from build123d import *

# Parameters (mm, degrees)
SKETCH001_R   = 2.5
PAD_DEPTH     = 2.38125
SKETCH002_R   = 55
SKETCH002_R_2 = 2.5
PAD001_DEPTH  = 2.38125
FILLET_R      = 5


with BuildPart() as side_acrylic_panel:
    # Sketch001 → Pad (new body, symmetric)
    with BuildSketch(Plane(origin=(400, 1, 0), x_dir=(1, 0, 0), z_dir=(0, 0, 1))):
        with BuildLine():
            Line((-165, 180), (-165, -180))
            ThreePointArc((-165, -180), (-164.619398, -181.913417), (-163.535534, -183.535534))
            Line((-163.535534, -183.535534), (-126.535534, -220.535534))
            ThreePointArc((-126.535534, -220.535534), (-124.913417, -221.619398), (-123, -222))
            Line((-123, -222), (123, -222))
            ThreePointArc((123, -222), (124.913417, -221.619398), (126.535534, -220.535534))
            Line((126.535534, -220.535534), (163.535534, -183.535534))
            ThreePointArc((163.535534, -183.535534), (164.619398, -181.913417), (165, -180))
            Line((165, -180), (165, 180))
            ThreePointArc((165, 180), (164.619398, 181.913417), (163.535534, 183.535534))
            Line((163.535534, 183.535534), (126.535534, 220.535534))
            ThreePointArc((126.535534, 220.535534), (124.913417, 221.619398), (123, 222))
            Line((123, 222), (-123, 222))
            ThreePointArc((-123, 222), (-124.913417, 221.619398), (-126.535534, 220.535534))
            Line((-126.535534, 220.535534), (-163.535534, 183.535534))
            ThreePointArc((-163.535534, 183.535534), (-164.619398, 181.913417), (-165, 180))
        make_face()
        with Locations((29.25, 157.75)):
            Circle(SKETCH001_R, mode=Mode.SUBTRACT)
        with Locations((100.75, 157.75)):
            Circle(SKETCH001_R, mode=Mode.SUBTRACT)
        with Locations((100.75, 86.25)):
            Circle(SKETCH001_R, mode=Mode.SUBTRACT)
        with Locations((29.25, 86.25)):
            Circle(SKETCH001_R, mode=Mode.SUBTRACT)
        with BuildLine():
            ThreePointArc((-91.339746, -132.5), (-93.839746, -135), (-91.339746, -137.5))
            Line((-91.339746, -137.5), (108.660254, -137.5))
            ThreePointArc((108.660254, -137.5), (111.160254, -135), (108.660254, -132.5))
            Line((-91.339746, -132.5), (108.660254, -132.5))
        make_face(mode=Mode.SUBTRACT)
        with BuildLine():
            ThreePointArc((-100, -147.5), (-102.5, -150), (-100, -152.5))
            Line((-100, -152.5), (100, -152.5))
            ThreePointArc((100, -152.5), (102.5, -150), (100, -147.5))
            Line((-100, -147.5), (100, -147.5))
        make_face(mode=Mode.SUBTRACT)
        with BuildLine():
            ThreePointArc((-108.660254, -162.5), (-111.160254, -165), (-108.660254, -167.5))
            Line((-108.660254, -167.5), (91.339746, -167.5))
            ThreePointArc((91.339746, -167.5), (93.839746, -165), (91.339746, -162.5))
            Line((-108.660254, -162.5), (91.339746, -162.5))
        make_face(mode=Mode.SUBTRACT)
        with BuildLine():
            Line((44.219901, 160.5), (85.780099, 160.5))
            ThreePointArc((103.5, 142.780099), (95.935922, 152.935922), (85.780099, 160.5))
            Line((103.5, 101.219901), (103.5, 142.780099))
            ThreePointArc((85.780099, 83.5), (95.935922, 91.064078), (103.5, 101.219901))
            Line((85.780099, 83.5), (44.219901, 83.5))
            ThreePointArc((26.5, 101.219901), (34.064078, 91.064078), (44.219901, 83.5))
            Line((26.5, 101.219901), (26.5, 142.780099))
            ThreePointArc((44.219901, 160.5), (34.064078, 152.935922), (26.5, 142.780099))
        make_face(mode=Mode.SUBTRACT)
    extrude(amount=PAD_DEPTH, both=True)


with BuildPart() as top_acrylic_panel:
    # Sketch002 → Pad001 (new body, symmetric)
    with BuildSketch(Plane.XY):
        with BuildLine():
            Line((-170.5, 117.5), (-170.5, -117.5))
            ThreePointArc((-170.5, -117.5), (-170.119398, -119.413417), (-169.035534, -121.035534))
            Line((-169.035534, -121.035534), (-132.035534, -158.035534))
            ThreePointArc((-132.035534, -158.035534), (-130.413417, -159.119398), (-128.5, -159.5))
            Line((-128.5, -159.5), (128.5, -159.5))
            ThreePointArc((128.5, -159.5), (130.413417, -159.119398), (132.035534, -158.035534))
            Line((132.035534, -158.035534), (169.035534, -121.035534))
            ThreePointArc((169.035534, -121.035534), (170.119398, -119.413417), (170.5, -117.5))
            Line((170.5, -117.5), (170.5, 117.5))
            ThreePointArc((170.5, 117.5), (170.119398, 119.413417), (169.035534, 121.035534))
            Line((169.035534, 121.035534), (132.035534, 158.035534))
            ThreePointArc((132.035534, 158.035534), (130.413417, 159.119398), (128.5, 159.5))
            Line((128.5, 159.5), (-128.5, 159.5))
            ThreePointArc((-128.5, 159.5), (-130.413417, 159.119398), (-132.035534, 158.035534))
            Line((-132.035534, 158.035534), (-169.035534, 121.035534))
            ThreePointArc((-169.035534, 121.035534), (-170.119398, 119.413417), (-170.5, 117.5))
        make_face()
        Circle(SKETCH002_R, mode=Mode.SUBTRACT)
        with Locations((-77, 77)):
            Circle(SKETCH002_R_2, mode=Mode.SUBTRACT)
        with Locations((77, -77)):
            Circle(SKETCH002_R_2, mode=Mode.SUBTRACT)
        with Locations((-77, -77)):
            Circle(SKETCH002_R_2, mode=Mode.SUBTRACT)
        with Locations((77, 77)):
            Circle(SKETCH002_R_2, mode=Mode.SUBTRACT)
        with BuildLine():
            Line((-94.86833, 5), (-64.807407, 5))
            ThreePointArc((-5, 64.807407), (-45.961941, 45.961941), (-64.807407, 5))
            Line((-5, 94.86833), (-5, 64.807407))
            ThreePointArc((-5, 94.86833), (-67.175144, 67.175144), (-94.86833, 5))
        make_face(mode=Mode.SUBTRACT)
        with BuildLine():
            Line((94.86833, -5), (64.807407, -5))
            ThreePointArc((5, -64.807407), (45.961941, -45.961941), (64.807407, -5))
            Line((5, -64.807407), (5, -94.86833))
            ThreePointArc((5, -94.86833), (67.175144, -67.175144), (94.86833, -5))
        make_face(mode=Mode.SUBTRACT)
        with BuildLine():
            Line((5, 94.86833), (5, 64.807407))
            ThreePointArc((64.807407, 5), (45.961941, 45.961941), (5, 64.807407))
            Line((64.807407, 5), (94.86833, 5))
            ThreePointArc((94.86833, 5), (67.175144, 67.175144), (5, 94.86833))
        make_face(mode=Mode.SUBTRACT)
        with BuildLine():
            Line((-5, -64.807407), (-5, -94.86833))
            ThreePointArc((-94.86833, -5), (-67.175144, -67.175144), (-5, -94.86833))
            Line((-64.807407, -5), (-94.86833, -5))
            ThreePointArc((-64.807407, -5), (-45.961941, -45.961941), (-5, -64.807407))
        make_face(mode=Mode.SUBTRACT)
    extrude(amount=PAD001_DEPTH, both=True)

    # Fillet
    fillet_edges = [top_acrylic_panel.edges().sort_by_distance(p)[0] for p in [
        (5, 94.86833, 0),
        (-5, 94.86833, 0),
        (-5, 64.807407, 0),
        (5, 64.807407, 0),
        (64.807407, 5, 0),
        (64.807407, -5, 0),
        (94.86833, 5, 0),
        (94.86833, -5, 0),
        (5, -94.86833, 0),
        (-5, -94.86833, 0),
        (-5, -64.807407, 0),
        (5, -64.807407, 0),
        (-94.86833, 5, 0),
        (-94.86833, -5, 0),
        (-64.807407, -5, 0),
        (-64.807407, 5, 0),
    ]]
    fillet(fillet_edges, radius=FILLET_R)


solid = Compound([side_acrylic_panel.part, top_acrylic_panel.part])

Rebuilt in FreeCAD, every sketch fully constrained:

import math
import FreeCAD as App
import Part
import Sketcher
Q = App.Units.Quantity


def edges_at(feature, points):
    """Names of the edges that pass closest to the given points."""
    edges = feature.Shape.Edges
    near = lambda p: min(range(len(edges)), key=lambda i: edges[i].distToShape(Part.Vertex(*p))[0])
    return sorted({f"Edge{near(p) + 1}" for p in points})

doc = App.newDocument("Part")
body = doc.addObject("PartDesign::Body", "Body")

# Sketch on XY plane
sketch1 = body.newObject("Sketcher::SketchObject", "Sketch")
sketch1.AttachmentSupport = (doc.getObject("XY_Plane"), [""])
sketch1.MapMode = "FlatFace"
sketch1.addGeometry(Part.LineSegment(App.Vector(235, 181, 0), App.Vector(235, -179, 0)), False)
sketch1.addGeometry(Part.ArcOfCircle(Part.Circle(App.Vector(240, -179, 0), App.Vector(0, 0, 1), 5), math.radians(180), math.radians(225)), False)
sketch1.addGeometry(Part.LineSegment(App.Vector(236.5, -182.5, 0), App.Vector(273.5, -219.5, 0)), False)
sketch1.addGeometry(Part.ArcOfCircle(Part.Circle(App.Vector(277, -216, 0), App.Vector(0, 0, 1), 5), math.radians(-135), math.radians(-90)), False)
sketch1.addGeometry(Part.LineSegment(App.Vector(277, -221, 0), App.Vector(523, -221, 0)), False)
sketch1.addGeometry(Part.ArcOfCircle(Part.Circle(App.Vector(523, -216, 0), App.Vector(0, 0, 1), 5), math.radians(-90), math.radians(-45)), False)
sketch1.addGeometry(Part.LineSegment(App.Vector(526.5, -219.5, 0), App.Vector(563.5, -182.5, 0)), False)
sketch1.addGeometry(Part.ArcOfCircle(Part.Circle(App.Vector(560, -179, 0), App.Vector(0, 0, 1), 5), math.radians(-45), math.radians(0)), False)
sketch1.addGeometry(Part.LineSegment(App.Vector(565, -179, 0), App.Vector(565, 181, 0)), False)
sketch1.addGeometry(Part.ArcOfCircle(Part.Circle(App.Vector(560, 181, 0), App.Vector(0, 0, 1), 5), math.radians(0), math.radians(45)), False)
sketch1.addGeometry(Part.LineSegment(App.Vector(563.5, 184.5, 0), App.Vector(526.5, 221.5, 0)), False)
sketch1.addGeometry(Part.ArcOfCircle(Part.Circle(App.Vector(523, 218, 0), App.Vector(0, 0, 1), 5), math.radians(45), math.radians(90)), False)
sketch1.addGeometry(Part.LineSegment(App.Vector(523, 223, 0), App.Vector(277, 223, 0)), False)
sketch1.addGeometry(Part.ArcOfCircle(Part.Circle(App.Vector(277, 218, 0), App.Vector(0, 0, 1), 5), math.radians(90), math.radians(135)), False)
sketch1.addGeometry(Part.LineSegment(App.Vector(273.5, 221.5, 0), App.Vector(236.5, 184.5, 0)), False)
sketch1.addGeometry(Part.ArcOfCircle(Part.Circle(App.Vector(240, 181, 0), App.Vector(0, 0, 1), 5), math.radians(135), math.radians(180)), False)
sketch1.addGeometry(Part.ArcOfCircle(Part.Circle(App.Vector(291.3, -164, 0), App.Vector(0, 0, 1), 2.5), math.radians(90), math.radians(270)), False)
sketch1.addGeometry(Part.LineSegment(App.Vector(291.3, -161.5, 0), App.Vector(491.3, -161.5, 0)), False)
sketch1.addGeometry(Part.ArcOfCircle(Part.Circle(App.Vector(491.3, -164, 0), App.Vector(0, 0, 1), 2.5), math.radians(-90), math.radians(90)), False)
sketch1.addGeometry(Part.LineSegment(App.Vector(491.3, -166.5, 0), App.Vector(291.3, -166.5, 0)), False)
sketch1.addGeometry(Part.ArcOfCircle(Part.Circle(App.Vector(300, -149, 0), App.Vector(0, 0, 1), 2.5), math.radians(90), math.radians(270)), False)
sketch1.addGeometry(Part.LineSegment(App.Vector(300, -146.5, 0), App.Vector(500, -146.5, 0)), False)
sketch1.addGeometry(Part.ArcOfCircle(Part.Circle(App.Vector(500, -149, 0), App.Vector(0, 0, 1), 2.5), math.radians(-90), math.radians(90)), False)
sketch1.addGeometry(Part.LineSegment(App.Vector(500, -151.5, 0), App.Vector(300, -151.5, 0)), False)
sketch1.addGeometry(Part.ArcOfCircle(Part.Circle(App.Vector(308.7, -134, 0), App.Vector(0, 0, 1), 2.5), math.radians(90), math.radians(270)), False)
sketch1.addGeometry(Part.LineSegment(App.Vector(308.7, -131.5, 0), App.Vector(508.7, -131.5, 0)), False)
sketch1.addGeometry(Part.ArcOfCircle(Part.Circle(App.Vector(508.7, -134, 0), App.Vector(0, 0, 1), 2.5), math.radians(-90), math.radians(90)), False)
sketch1.addGeometry(Part.LineSegment(App.Vector(508.7, -136.5, 0), App.Vector(308.7, -136.5, 0)), False)
sketch1.addGeometry(Part.Circle(App.Vector(429.2, 87.2, 0), App.Vector(0, 0, 1), 2.5), False)
sketch1.addGeometry(Part.Circle(App.Vector(429.2, 158.8, 0), App.Vector(0, 0, 1), 2.5), False)
sketch1.addGeometry(Part.Circle(App.Vector(500.8, 87.2, 0), App.Vector(0, 0, 1), 2.5), False)
sketch1.addGeometry(Part.ArcOfCircle(Part.Circle(App.Vector(465, 123, 0), App.Vector(0, 0, 1), 43.7), math.radians(118), math.radians(152)), False)
sketch1.addGeometry(Part.LineSegment(App.Vector(444.2, 161.5, 0), App.Vector(485.8, 161.5, 0)), False)
sketch1.addGeometry(Part.ArcOfCircle(Part.Circle(App.Vector(465, 123, 0), App.Vector(0, 0, 1), 43.7), math.radians(28), math.radians(62)), False)
sketch1.addGeometry(Part.LineSegment(App.Vector(503.5, 143.8, 0), App.Vector(503.5, 102.2, 0)), False)
sketch1.addGeometry(Part.ArcOfCircle(Part.Circle(App.Vector(465, 123, 0), App.Vector(0, 0, 1), 43.7), math.radians(-62), math.radians(-28)), False)
sketch1.addGeometry(Part.LineSegment(App.Vector(485.8, 84.5, 0), App.Vector(444.2, 84.5, 0)), False)
sketch1.addGeometry(Part.ArcOfCircle(Part.Circle(App.Vector(465, 123, 0), App.Vector(0, 0, 1), 43.7), math.radians(-152), math.radians(-118)), False)
sketch1.addGeometry(Part.LineSegment(App.Vector(426.5, 102.2, 0), App.Vector(426.5, 143.8, 0)), False)
sketch1.addGeometry(Part.Circle(App.Vector(500.8, 158.8, 0), App.Vector(0, 0, 1), 2.5), False)
sketch1.addConstraint(Sketcher.Constraint("Tangent", 0, 2, 1, 1))
sketch1.addConstraint(Sketcher.Constraint("Tangent", 1, 2, 2, 1))
sketch1.addConstraint(Sketcher.Constraint("Tangent", 2, 2, 3, 1))
sketch1.addConstraint(Sketcher.Constraint("Tangent", 3, 2, 4, 1))
sketch1.addConstraint(Sketcher.Constraint("Tangent", 4, 2, 5, 1))
sketch1.addConstraint(Sketcher.Constraint("Tangent", 5, 2, 6, 1))
sketch1.addConstraint(Sketcher.Constraint("Tangent", 6, 2, 7, 1))
sketch1.addConstraint(Sketcher.Constraint("Tangent", 7, 2, 8, 1))
sketch1.addConstraint(Sketcher.Constraint("Tangent", 8, 2, 9, 1))
sketch1.addConstraint(Sketcher.Constraint("Tangent", 9, 2, 10, 1))
sketch1.addConstraint(Sketcher.Constraint("Tangent", 10, 2, 11, 1))
sketch1.addConstraint(Sketcher.Constraint("Tangent", 11, 2, 12, 1))
sketch1.addConstraint(Sketcher.Constraint("Tangent", 12, 2, 13, 1))
sketch1.addConstraint(Sketcher.Constraint("Tangent", 13, 2, 14, 1))
sketch1.addConstraint(Sketcher.Constraint("Tangent", 14, 2, 15, 1))
sketch1.addConstraint(Sketcher.Constraint("Tangent", 15, 2, 0, 1))
sketch1.addConstraint(Sketcher.Constraint("Tangent", 16, 1, 17, 1))
sketch1.addConstraint(Sketcher.Constraint("Tangent", 17, 2, 18, 2))
sketch1.addConstraint(Sketcher.Constraint("Tangent", 18, 1, 19, 1))
sketch1.addConstraint(Sketcher.Constraint("Tangent", 19, 2, 16, 2))
sketch1.addConstraint(Sketcher.Constraint("Tangent", 20, 1, 21, 1))
sketch1.addConstraint(Sketcher.Constraint("Tangent", 21, 2, 22, 2))
sketch1.addConstraint(Sketcher.Constraint("Tangent", 22, 1, 23, 1))
sketch1.addConstraint(Sketcher.Constraint("Tangent", 23, 2, 20, 2))
sketch1.addConstraint(Sketcher.Constraint("Tangent", 24, 1, 25, 1))
sketch1.addConstraint(Sketcher.Constraint("Tangent", 25, 2, 26, 2))
sketch1.addConstraint(Sketcher.Constraint("Tangent", 26, 1, 27, 1))
sketch1.addConstraint(Sketcher.Constraint("Tangent", 27, 2, 24, 2))
sketch1.addConstraint(Sketcher.Constraint("Coincident", 31, 1, 32, 1))
sketch1.addConstraint(Sketcher.Constraint("Coincident", 32, 2, 33, 2))
sketch1.addConstraint(Sketcher.Constraint("Coincident", 33, 1, 34, 1))
sketch1.addConstraint(Sketcher.Constraint("Coincident", 34, 2, 35, 2))
sketch1.addConstraint(Sketcher.Constraint("Coincident", 35, 1, 36, 1))
sketch1.addConstraint(Sketcher.Constraint("Coincident", 36, 2, 37, 2))
sketch1.addConstraint(Sketcher.Constraint("Coincident", 37, 1, 38, 1))
sketch1.addConstraint(Sketcher.Constraint("Coincident", 38, 2, 31, 2))
sketch1.addConstraint(Sketcher.Constraint("Vertical", 0))
sketch1.addConstraint(Sketcher.Constraint("Horizontal", 4))
sketch1.addConstraint(Sketcher.Constraint("Vertical", 8))
sketch1.addConstraint(Sketcher.Constraint("Horizontal", 12))
sketch1.addConstraint(Sketcher.Constraint("Horizontal", 17))
sketch1.addConstraint(Sketcher.Constraint("Horizontal", 19))
sketch1.addConstraint(Sketcher.Constraint("Horizontal", 21))
sketch1.addConstraint(Sketcher.Constraint("Horizontal", 23))
sketch1.addConstraint(Sketcher.Constraint("Horizontal", 25))
sketch1.addConstraint(Sketcher.Constraint("Horizontal", 27))
sketch1.addConstraint(Sketcher.Constraint("Horizontal", 32))
sketch1.addConstraint(Sketcher.Constraint("Vertical", 34))
sketch1.addConstraint(Sketcher.Constraint("Horizontal", 36))
sketch1.addConstraint(Sketcher.Constraint("Vertical", 38))
sketch1.addConstraint(Sketcher.Constraint("Coincident", 33, 3, 31, 3))
sketch1.addConstraint(Sketcher.Constraint("Coincident", 35, 3, 33, 3))
sketch1.addConstraint(Sketcher.Constraint("Coincident", 37, 3, 31, 3))
sketch1.addConstraint(Sketcher.Constraint("Equal", 1, 3))
sketch1.addConstraint(Sketcher.Constraint("Equal", 3, 5))
sketch1.addConstraint(Sketcher.Constraint("Equal", 5, 7))
sketch1.addConstraint(Sketcher.Constraint("Equal", 7, 9))
sketch1.addConstraint(Sketcher.Constraint("Equal", 9, 11))
sketch1.addConstraint(Sketcher.Constraint("Equal", 11, 13))
sketch1.addConstraint(Sketcher.Constraint("Equal", 13, 15))
sketch1.addConstraint(Sketcher.Constraint("Equal", 18, 20))
sketch1.addConstraint(Sketcher.Constraint("Equal", 22, 24))
sketch1.addConstraint(Sketcher.Constraint("Equal", 26, 28))
sketch1.addConstraint(Sketcher.Constraint("Equal", 28, 29))
sketch1.addConstraint(Sketcher.Constraint("Equal", 29, 30))
sketch1.addConstraint(Sketcher.Constraint("Equal", 31, 33))
sketch1.addConstraint(Sketcher.Constraint("Equal", 33, 35))
sketch1.addConstraint(Sketcher.Constraint("Equal", 35, 37))
sketch1.addConstraint(Sketcher.Constraint("Equal", 30, 39))
sketch1.addConstraint(Sketcher.Constraint("Perpendicular", 2, 6))
sketch1.addConstraint(Sketcher.Constraint("Perpendicular", 6, 10))
sketch1.addConstraint(Sketcher.Constraint("Perpendicular", 10, 14))
sketch1.addConstraint(Sketcher.Constraint("Horizontal", 1, 3, 7, 3))
sketch1.addConstraint(Sketcher.Constraint("Horizontal", 9, 3, 15, 3))
sketch1.addConstraint(Sketcher.Constraint("Horizontal", 28, 3, 30, 3))
sketch1.addConstraint(Sketcher.Constraint("Horizontal", 29, 3, 39, 3))
sketch1.addConstraint(Sketcher.Constraint("Horizontal", 2, 2, 5, 2))
sketch1.addConstraint(Sketcher.Constraint("Horizontal", 34, 2, 37, 1))
sketch1.addConstraint(Sketcher.Constraint("Vertical", 5, 3, 11, 3))
sketch1.addConstraint(Sketcher.Constraint("Vertical", 28, 3, 29, 3))
sketch1.addConstraint(Sketcher.Constraint("Vertical", 30, 3, 39, 3))
sketch1.addConstraint(Sketcher.Constraint("Vertical", 32, 2, 35, 1))
sketch1.addConstraint(Sketcher.Constraint("Equal", 19, 21))
sketch1.addConstraint(Sketcher.Constraint("Equal", 23, 25))
sketch1.addConstraint(Sketcher.Constraint("Equal", 36, 34))
sketch1.addConstraint(Sketcher.Constraint("Diameter", 28, Q("5 mm")))
sketch1.addConstraint(Sketcher.Constraint("DistanceX", 4, 1, 4, 2, Q("246 mm")))
sketch1.addConstraint(Sketcher.Constraint("DistanceX", 17, 1, 17, 2, Q("200 mm")))
sketch1.addConstraint(Sketcher.Constraint("DistanceY", 0, 2, 0, 1, Q("360 mm")))
sketch1.addConstraint(Sketcher.Constraint("DistanceY", 1, 3, -1, 1, Q("179.000001 mm")))
sketch1.addConstraint(Sketcher.Constraint("DistanceX", -1, 1, 3, 3, Q("276.999999 mm")))
sketch1.addConstraint(Sketcher.Constraint("DistanceY", 16, 3, -1, 1, Q("164 mm")))
sketch1.addConstraint(Sketcher.Constraint("DistanceX", -1, 1, 20, 3, Q("300 mm")))
sketch1.addConstraint(Sketcher.Constraint("DistanceY", 20, 3, -1, 1, Q("149 mm")))
sketch1.addConstraint(Sketcher.Constraint("DistanceY", 24, 3, -1, 1, Q("134 mm")))
sketch1.addConstraint(Sketcher.Constraint("DistanceX", -1, 1, 0, 2, Q("235 mm")))
sketch1.addConstraint(Sketcher.Constraint("DistanceX", 1, 3, 3, 3, Q("37.000001 mm")))
sketch1.addConstraint(Sketcher.Constraint("DistanceY", -1, 1, 31, 1, Q("161.5 mm")))
sketch1.addConstraint(Sketcher.Constraint("DistanceX", -1, 1, 33, 1, Q("503.5 mm")))
sketch1.addConstraint(Sketcher.Constraint("DistanceY", -1, 1, 35, 1, Q("84.5 mm")))
sketch1.addConstraint(Sketcher.Constraint("DistanceY", 28, 3, 29, 3, Q("71.5 mm")))
sketch1.addConstraint(Sketcher.Constraint("DistanceX", 28, 3, 30, 3, Q("71.5 mm")))
sketch1.addConstraint(Sketcher.Constraint("DistanceX", -1, 1, 28, 3, Q("429.25 mm")))
sketch1.addConstraint(Sketcher.Constraint("DistanceY", -1, 1, 28, 3, Q("87.25 mm")))
sketch1.addConstraint(Sketcher.Constraint("DistanceX", 32, 1, 32, 2, Q("41.560198 mm")))
sketch1.addConstraint(Sketcher.Constraint("DistanceX", 1, 3, 16, 3, Q("51.339748 mm")))
sketch1.addConstraint(Sketcher.Constraint("DistanceX", 16, 3, 24, 3, Q("17.320508 mm")))
pad1 = body.newObject("PartDesign::Pad", "Pad")
pad1.Profile = sketch1
pad1.Length = 4.7625
pad1.Midplane = True
body2 = doc.addObject("PartDesign::Body", "Body001")

# Sketch on XY plane
sketch2 = body2.newObject("Sketcher::SketchObject", "Sketch001")
sketch2.AttachmentSupport = (doc.getObject("XY_Plane001"), [""])
sketch2.MapMode = "FlatFace"
sketch2.addGeometry(Part.LineSegment(App.Vector(-170.5, 117.5, 0), App.Vector(-170.5, -117.5, 0)), False)
sketch2.addGeometry(Part.ArcOfCircle(Part.Circle(App.Vector(-165.5, -117.5, 0), App.Vector(0, 0, 1), 5), math.radians(180), math.radians(225)), False)
sketch2.addGeometry(Part.LineSegment(App.Vector(-169, -121, 0), App.Vector(-132, -158, 0)), False)
sketch2.addGeometry(Part.ArcOfCircle(Part.Circle(App.Vector(-128.5, -154.5, 0), App.Vector(0, 0, 1), 5), math.radians(-135), math.radians(-90)), False)
sketch2.addGeometry(Part.LineSegment(App.Vector(-128.5, -159.5, 0), App.Vector(128.5, -159.5, 0)), False)
sketch2.addGeometry(Part.ArcOfCircle(Part.Circle(App.Vector(128.5, -154.5, 0), App.Vector(0, 0, 1), 5), math.radians(-90), math.radians(-45)), False)
sketch2.addGeometry(Part.LineSegment(App.Vector(132, -158, 0), App.Vector(169, -121, 0)), False)
sketch2.addGeometry(Part.ArcOfCircle(Part.Circle(App.Vector(165.5, -117.5, 0), App.Vector(0, 0, 1), 5), math.radians(-45), math.radians(0)), False)
sketch2.addGeometry(Part.LineSegment(App.Vector(170.5, -117.5, 0), App.Vector(170.5, 117.5, 0)), False)
sketch2.addGeometry(Part.ArcOfCircle(Part.Circle(App.Vector(165.5, 117.5, 0), App.Vector(0, 0, 1), 5), math.radians(0), math.radians(45)), False)
sketch2.addGeometry(Part.LineSegment(App.Vector(169, 121, 0), App.Vector(132, 158, 0)), False)
sketch2.addGeometry(Part.ArcOfCircle(Part.Circle(App.Vector(128.5, 154.5, 0), App.Vector(0, 0, 1), 5), math.radians(45), math.radians(90)), False)
sketch2.addGeometry(Part.LineSegment(App.Vector(128.5, 159.5, 0), App.Vector(-128.5, 159.5, 0)), False)
sketch2.addGeometry(Part.ArcOfCircle(Part.Circle(App.Vector(-128.5, 154.5, 0), App.Vector(0, 0, 1), 5), math.radians(90), math.radians(135)), False)
sketch2.addGeometry(Part.LineSegment(App.Vector(-132, 158, 0), App.Vector(-169, 121, 0)), False)
sketch2.addGeometry(Part.ArcOfCircle(Part.Circle(App.Vector(-165.5, 117.5, 0), App.Vector(0, 0, 1), 5), math.radians(135), math.radians(180)), False)
sketch2.addGeometry(Part.Circle(App.Vector(-77, -77, 0), App.Vector(0, 0, 1), 2.5), False)
sketch2.addGeometry(Part.ArcOfCircle(Part.Circle(App.Vector(0, 0, 0), App.Vector(0, 0, 1), 65), math.radians(-176), math.radians(-94)), False)
sketch2.addGeometry(Part.LineSegment(App.Vector(-5, -64.8, 0), App.Vector(-5, -94.9, 0)), False)
sketch2.addGeometry(Part.ArcOfCircle(Part.Circle(App.Vector(0, 0, 0), App.Vector(0, 0, 1), 95), math.radians(-177), math.radians(-93)), False)
sketch2.addGeometry(Part.LineSegment(App.Vector(-94.9, -5, 0), App.Vector(-64.8, -5, 0)), False)
sketch2.addGeometry(Part.Circle(App.Vector(77, -77, 0), App.Vector(0, 0, 1), 2.5), False)
sketch2.addGeometry(Part.LineSegment(App.Vector(64.8, -5, 0), App.Vector(94.9, -5, 0)), False)
sketch2.addGeometry(Part.ArcOfCircle(Part.Circle(App.Vector(0, 0, 0), App.Vector(0, 0, 1), 95), math.radians(-87), math.radians(-3)), False)
sketch2.addGeometry(Part.LineSegment(App.Vector(5, -94.9, 0), App.Vector(5, -64.8, 0)), False)
sketch2.addGeometry(Part.ArcOfCircle(Part.Circle(App.Vector(0, 0, 0), App.Vector(0, 0, 1), 65), math.radians(-86), math.radians(-4)), False)
sketch2.addGeometry(Part.LineSegment(App.Vector(-64.8, 5, 0), App.Vector(-94.9, 5, 0)), False)
sketch2.addGeometry(Part.ArcOfCircle(Part.Circle(App.Vector(0, 0, 0), App.Vector(0, 0, 1), 95), math.radians(93), math.radians(177)), False)
sketch2.addGeometry(Part.LineSegment(App.Vector(-5, 94.9, 0), App.Vector(-5, 64.8, 0)), False)
sketch2.addGeometry(Part.ArcOfCircle(Part.Circle(App.Vector(0, 0, 0), App.Vector(0, 0, 1), 65), math.radians(94), math.radians(176)), False)
sketch2.addGeometry(Part.Circle(App.Vector(-77, 77, 0), App.Vector(0, 0, 1), 2.5), False)
sketch2.addGeometry(Part.Circle(App.Vector(0, 0, 0), App.Vector(0, 0, 1), 55), False)
sketch2.addGeometry(Part.LineSegment(App.Vector(5, 64.8, 0), App.Vector(5, 94.9, 0)), False)
sketch2.addGeometry(Part.ArcOfCircle(Part.Circle(App.Vector(0, 0, 0), App.Vector(0, 0, 1), 95), math.radians(3), math.radians(87)), False)
sketch2.addGeometry(Part.LineSegment(App.Vector(94.9, 5, 0), App.Vector(64.8, 5, 0)), False)
sketch2.addGeometry(Part.ArcOfCircle(Part.Circle(App.Vector(0, 0, 0), App.Vector(0, 0, 1), 65), math.radians(4), math.radians(86)), False)
sketch2.addGeometry(Part.Circle(App.Vector(77, 77, 0), App.Vector(0, 0, 1), 2.5), False)
sketch2.addConstraint(Sketcher.Constraint("Tangent", 0, 2, 1, 1))
sketch2.addConstraint(Sketcher.Constraint("Tangent", 1, 2, 2, 1))
sketch2.addConstraint(Sketcher.Constraint("Tangent", 2, 2, 3, 1))
sketch2.addConstraint(Sketcher.Constraint("Tangent", 3, 2, 4, 1))
sketch2.addConstraint(Sketcher.Constraint("Tangent", 4, 2, 5, 1))
sketch2.addConstraint(Sketcher.Constraint("Tangent", 5, 2, 6, 1))
sketch2.addConstraint(Sketcher.Constraint("Tangent", 6, 2, 7, 1))
sketch2.addConstraint(Sketcher.Constraint("Tangent", 7, 2, 8, 1))
sketch2.addConstraint(Sketcher.Constraint("Tangent", 8, 2, 9, 1))
sketch2.addConstraint(Sketcher.Constraint("Tangent", 9, 2, 10, 1))
sketch2.addConstraint(Sketcher.Constraint("Tangent", 10, 2, 11, 1))
sketch2.addConstraint(Sketcher.Constraint("Tangent", 11, 2, 12, 1))
sketch2.addConstraint(Sketcher.Constraint("Tangent", 12, 2, 13, 1))
sketch2.addConstraint(Sketcher.Constraint("Tangent", 13, 2, 14, 1))
sketch2.addConstraint(Sketcher.Constraint("Tangent", 14, 2, 15, 1))
sketch2.addConstraint(Sketcher.Constraint("Tangent", 15, 2, 0, 1))
sketch2.addConstraint(Sketcher.Constraint("Coincident", 17, 2, 18, 1))
sketch2.addConstraint(Sketcher.Constraint("Coincident", 18, 2, 19, 2))
sketch2.addConstraint(Sketcher.Constraint("Coincident", 19, 1, 20, 1))
sketch2.addConstraint(Sketcher.Constraint("Coincident", 20, 2, 17, 1))
sketch2.addConstraint(Sketcher.Constraint("Coincident", 22, 2, 23, 2))
sketch2.addConstraint(Sketcher.Constraint("Coincident", 23, 1, 24, 1))
sketch2.addConstraint(Sketcher.Constraint("Coincident", 24, 2, 25, 1))
sketch2.addConstraint(Sketcher.Constraint("Coincident", 25, 2, 22, 1))
sketch2.addConstraint(Sketcher.Constraint("Coincident", 26, 2, 27, 2))
sketch2.addConstraint(Sketcher.Constraint("Coincident", 27, 1, 28, 1))
sketch2.addConstraint(Sketcher.Constraint("Coincident", 28, 2, 29, 1))
sketch2.addConstraint(Sketcher.Constraint("Coincident", 29, 2, 26, 1))
sketch2.addConstraint(Sketcher.Constraint("Coincident", 32, 2, 33, 2))
sketch2.addConstraint(Sketcher.Constraint("Coincident", 33, 1, 34, 1))
sketch2.addConstraint(Sketcher.Constraint("Coincident", 34, 2, 35, 1))
sketch2.addConstraint(Sketcher.Constraint("Coincident", 35, 2, 32, 1))
sketch2.addConstraint(Sketcher.Constraint("Vertical", 0))
sketch2.addConstraint(Sketcher.Constraint("Horizontal", 4))
sketch2.addConstraint(Sketcher.Constraint("Vertical", 8))
sketch2.addConstraint(Sketcher.Constraint("Horizontal", 12))
sketch2.addConstraint(Sketcher.Constraint("Vertical", 18))
sketch2.addConstraint(Sketcher.Constraint("Horizontal", 20))
sketch2.addConstraint(Sketcher.Constraint("Horizontal", 22))
sketch2.addConstraint(Sketcher.Constraint("Vertical", 24))
sketch2.addConstraint(Sketcher.Constraint("Horizontal", 26))
sketch2.addConstraint(Sketcher.Constraint("Vertical", 28))
sketch2.addConstraint(Sketcher.Constraint("Vertical", 32))
sketch2.addConstraint(Sketcher.Constraint("Horizontal", 34))
sketch2.addConstraint(Sketcher.Constraint("Coincident", 17, 3, -1, 1))
sketch2.addConstraint(Sketcher.Constraint("Coincident", 19, 3, -1, 1))
sketch2.addConstraint(Sketcher.Constraint("Coincident", 23, 3, -1, 1))
sketch2.addConstraint(Sketcher.Constraint("Coincident", 25, 3, -1, 1))
sketch2.addConstraint(Sketcher.Constraint("Coincident", 27, 3, -1, 1))
sketch2.addConstraint(Sketcher.Constraint("Coincident", 29, 3, -1, 1))
sketch2.addConstraint(Sketcher.Constraint("Coincident", 31, 3, -1, 1))
sketch2.addConstraint(Sketcher.Constraint("Coincident", 33, 3, -1, 1))
sketch2.addConstraint(Sketcher.Constraint("Coincident", 35, 3, -1, 1))
sketch2.addConstraint(Sketcher.Constraint("Equal", 1, 3))
sketch2.addConstraint(Sketcher.Constraint("Equal", 3, 5))
sketch2.addConstraint(Sketcher.Constraint("Equal", 5, 7))
sketch2.addConstraint(Sketcher.Constraint("Equal", 7, 9))
sketch2.addConstraint(Sketcher.Constraint("Equal", 9, 11))
sketch2.addConstraint(Sketcher.Constraint("Equal", 11, 13))
sketch2.addConstraint(Sketcher.Constraint("Equal", 13, 15))
sketch2.addConstraint(Sketcher.Constraint("Equal", 16, 21))
sketch2.addConstraint(Sketcher.Constraint("Equal", 19, 23))
sketch2.addConstraint(Sketcher.Constraint("Equal", 17, 25))
sketch2.addConstraint(Sketcher.Constraint("Equal", 23, 27))
sketch2.addConstraint(Sketcher.Constraint("Equal", 25, 29))
sketch2.addConstraint(Sketcher.Constraint("Equal", 21, 30))
sketch2.addConstraint(Sketcher.Constraint("Equal", 27, 33))
sketch2.addConstraint(Sketcher.Constraint("Equal", 29, 35))
sketch2.addConstraint(Sketcher.Constraint("Equal", 30, 36))
sketch2.addConstraint(Sketcher.Constraint("Symmetric", 1, 3, 9, 3, -1, 1))
sketch2.addConstraint(Sketcher.Constraint("Symmetric", 3, 3, 11, 3, -1, 1))
sketch2.addConstraint(Sketcher.Constraint("Symmetric", 21, 3, 30, 3, -1, 1))
sketch2.addConstraint(Sketcher.Constraint("Symmetric", 16, 3, 36, 3, -1, 1))
sketch2.addConstraint(Sketcher.Constraint("Symmetric", 5, 2, 13, 2, -1, 1))
sketch2.addConstraint(Sketcher.Constraint("Symmetric", 16, 3, 21, 3, -2))
sketch2.addConstraint(Sketcher.Constraint("Symmetric", 2, 2, 5, 2, -2))
sketch2.addConstraint(Sketcher.Constraint("Perpendicular", 2, 6))
sketch2.addConstraint(Sketcher.Constraint("Horizontal", 20, 2, 22, 2))
sketch2.addConstraint(Sketcher.Constraint("Horizontal", 18, 2, 23, 1))
sketch2.addConstraint(Sketcher.Constraint("Horizontal", 27, 1, 32, 2))
sketch2.addConstraint(Sketcher.Constraint("Horizontal", 29, 2, 33, 1))
sketch2.addConstraint(Sketcher.Constraint("Vertical", 19, 1, 26, 2))
sketch2.addConstraint(Sketcher.Constraint("Vertical", 18, 2, 27, 1))
sketch2.addConstraint(Sketcher.Constraint("Equal", 34, 18))
sketch2.addConstraint(Sketcher.Constraint("Diameter", 16, Q("5 mm")))
sketch2.addConstraint(Sketcher.Constraint("Diameter", 31, Q("110 mm")))
sketch2.addConstraint(Sketcher.Constraint("Radius", 17, Q("64.999999 mm")))
sketch2.addConstraint(Sketcher.Constraint("Radius", 19, Q("95.000002 mm")))
sketch2.addConstraint(Sketcher.Constraint("DistanceX", 4, 1, 4, 2, Q("257 mm")))
sketch2.addConstraint(Sketcher.Constraint("DistanceY", 0, 2, 0, 1, Q("235 mm")))
sketch2.addConstraint(Sketcher.Constraint("DistanceX", 16, 3, -1, 1, Q("77 mm")))
sketch2.addConstraint(Sketcher.Constraint("DistanceY", 16, 3, -1, 1, Q("77 mm")))
sketch2.addConstraint(Sketcher.Constraint("DistanceX", 17, 2, -1, 1, Q("5 mm")))
sketch2.addConstraint(Sketcher.Constraint("DistanceX", 1, 3, 3, 3, Q("37.000001 mm")))
sketch2.addConstraint(Sketcher.Constraint("DistanceX", 0, 2, 3, 3, Q("41.999999 mm")))
pad2 = body2.newObject("PartDesign::Pad", "Pad001")
pad2.Profile = sketch2
pad2.Length = 4.7625
pad2.Midplane = True
doc.recompute()

fillet = body2.newObject("PartDesign::Fillet", "Fillet")
fillet.Base = (pad2, edges_at(pad2, [
    (5, 94.868, 0),
    (-5, 94.868, 0),
    (-5, 64.807, 0),
    (5, 64.807, 0),
    (64.807, 5, 0),
    (64.807, -5, 0),
    (94.868, 5, 0),
    (94.868, -5, 0),
    (5, -94.868, 0),
    (-5, -94.868, 0),
    (-5, -64.807, 0),
    (5, -64.807, 0),
    (-94.868, 5, 0),
    (-94.868, -5, 0),
    (-64.807, -5, 0),
    (-64.807, 5, 0),
]))
fillet.Radius = 5

doc.recompute()
